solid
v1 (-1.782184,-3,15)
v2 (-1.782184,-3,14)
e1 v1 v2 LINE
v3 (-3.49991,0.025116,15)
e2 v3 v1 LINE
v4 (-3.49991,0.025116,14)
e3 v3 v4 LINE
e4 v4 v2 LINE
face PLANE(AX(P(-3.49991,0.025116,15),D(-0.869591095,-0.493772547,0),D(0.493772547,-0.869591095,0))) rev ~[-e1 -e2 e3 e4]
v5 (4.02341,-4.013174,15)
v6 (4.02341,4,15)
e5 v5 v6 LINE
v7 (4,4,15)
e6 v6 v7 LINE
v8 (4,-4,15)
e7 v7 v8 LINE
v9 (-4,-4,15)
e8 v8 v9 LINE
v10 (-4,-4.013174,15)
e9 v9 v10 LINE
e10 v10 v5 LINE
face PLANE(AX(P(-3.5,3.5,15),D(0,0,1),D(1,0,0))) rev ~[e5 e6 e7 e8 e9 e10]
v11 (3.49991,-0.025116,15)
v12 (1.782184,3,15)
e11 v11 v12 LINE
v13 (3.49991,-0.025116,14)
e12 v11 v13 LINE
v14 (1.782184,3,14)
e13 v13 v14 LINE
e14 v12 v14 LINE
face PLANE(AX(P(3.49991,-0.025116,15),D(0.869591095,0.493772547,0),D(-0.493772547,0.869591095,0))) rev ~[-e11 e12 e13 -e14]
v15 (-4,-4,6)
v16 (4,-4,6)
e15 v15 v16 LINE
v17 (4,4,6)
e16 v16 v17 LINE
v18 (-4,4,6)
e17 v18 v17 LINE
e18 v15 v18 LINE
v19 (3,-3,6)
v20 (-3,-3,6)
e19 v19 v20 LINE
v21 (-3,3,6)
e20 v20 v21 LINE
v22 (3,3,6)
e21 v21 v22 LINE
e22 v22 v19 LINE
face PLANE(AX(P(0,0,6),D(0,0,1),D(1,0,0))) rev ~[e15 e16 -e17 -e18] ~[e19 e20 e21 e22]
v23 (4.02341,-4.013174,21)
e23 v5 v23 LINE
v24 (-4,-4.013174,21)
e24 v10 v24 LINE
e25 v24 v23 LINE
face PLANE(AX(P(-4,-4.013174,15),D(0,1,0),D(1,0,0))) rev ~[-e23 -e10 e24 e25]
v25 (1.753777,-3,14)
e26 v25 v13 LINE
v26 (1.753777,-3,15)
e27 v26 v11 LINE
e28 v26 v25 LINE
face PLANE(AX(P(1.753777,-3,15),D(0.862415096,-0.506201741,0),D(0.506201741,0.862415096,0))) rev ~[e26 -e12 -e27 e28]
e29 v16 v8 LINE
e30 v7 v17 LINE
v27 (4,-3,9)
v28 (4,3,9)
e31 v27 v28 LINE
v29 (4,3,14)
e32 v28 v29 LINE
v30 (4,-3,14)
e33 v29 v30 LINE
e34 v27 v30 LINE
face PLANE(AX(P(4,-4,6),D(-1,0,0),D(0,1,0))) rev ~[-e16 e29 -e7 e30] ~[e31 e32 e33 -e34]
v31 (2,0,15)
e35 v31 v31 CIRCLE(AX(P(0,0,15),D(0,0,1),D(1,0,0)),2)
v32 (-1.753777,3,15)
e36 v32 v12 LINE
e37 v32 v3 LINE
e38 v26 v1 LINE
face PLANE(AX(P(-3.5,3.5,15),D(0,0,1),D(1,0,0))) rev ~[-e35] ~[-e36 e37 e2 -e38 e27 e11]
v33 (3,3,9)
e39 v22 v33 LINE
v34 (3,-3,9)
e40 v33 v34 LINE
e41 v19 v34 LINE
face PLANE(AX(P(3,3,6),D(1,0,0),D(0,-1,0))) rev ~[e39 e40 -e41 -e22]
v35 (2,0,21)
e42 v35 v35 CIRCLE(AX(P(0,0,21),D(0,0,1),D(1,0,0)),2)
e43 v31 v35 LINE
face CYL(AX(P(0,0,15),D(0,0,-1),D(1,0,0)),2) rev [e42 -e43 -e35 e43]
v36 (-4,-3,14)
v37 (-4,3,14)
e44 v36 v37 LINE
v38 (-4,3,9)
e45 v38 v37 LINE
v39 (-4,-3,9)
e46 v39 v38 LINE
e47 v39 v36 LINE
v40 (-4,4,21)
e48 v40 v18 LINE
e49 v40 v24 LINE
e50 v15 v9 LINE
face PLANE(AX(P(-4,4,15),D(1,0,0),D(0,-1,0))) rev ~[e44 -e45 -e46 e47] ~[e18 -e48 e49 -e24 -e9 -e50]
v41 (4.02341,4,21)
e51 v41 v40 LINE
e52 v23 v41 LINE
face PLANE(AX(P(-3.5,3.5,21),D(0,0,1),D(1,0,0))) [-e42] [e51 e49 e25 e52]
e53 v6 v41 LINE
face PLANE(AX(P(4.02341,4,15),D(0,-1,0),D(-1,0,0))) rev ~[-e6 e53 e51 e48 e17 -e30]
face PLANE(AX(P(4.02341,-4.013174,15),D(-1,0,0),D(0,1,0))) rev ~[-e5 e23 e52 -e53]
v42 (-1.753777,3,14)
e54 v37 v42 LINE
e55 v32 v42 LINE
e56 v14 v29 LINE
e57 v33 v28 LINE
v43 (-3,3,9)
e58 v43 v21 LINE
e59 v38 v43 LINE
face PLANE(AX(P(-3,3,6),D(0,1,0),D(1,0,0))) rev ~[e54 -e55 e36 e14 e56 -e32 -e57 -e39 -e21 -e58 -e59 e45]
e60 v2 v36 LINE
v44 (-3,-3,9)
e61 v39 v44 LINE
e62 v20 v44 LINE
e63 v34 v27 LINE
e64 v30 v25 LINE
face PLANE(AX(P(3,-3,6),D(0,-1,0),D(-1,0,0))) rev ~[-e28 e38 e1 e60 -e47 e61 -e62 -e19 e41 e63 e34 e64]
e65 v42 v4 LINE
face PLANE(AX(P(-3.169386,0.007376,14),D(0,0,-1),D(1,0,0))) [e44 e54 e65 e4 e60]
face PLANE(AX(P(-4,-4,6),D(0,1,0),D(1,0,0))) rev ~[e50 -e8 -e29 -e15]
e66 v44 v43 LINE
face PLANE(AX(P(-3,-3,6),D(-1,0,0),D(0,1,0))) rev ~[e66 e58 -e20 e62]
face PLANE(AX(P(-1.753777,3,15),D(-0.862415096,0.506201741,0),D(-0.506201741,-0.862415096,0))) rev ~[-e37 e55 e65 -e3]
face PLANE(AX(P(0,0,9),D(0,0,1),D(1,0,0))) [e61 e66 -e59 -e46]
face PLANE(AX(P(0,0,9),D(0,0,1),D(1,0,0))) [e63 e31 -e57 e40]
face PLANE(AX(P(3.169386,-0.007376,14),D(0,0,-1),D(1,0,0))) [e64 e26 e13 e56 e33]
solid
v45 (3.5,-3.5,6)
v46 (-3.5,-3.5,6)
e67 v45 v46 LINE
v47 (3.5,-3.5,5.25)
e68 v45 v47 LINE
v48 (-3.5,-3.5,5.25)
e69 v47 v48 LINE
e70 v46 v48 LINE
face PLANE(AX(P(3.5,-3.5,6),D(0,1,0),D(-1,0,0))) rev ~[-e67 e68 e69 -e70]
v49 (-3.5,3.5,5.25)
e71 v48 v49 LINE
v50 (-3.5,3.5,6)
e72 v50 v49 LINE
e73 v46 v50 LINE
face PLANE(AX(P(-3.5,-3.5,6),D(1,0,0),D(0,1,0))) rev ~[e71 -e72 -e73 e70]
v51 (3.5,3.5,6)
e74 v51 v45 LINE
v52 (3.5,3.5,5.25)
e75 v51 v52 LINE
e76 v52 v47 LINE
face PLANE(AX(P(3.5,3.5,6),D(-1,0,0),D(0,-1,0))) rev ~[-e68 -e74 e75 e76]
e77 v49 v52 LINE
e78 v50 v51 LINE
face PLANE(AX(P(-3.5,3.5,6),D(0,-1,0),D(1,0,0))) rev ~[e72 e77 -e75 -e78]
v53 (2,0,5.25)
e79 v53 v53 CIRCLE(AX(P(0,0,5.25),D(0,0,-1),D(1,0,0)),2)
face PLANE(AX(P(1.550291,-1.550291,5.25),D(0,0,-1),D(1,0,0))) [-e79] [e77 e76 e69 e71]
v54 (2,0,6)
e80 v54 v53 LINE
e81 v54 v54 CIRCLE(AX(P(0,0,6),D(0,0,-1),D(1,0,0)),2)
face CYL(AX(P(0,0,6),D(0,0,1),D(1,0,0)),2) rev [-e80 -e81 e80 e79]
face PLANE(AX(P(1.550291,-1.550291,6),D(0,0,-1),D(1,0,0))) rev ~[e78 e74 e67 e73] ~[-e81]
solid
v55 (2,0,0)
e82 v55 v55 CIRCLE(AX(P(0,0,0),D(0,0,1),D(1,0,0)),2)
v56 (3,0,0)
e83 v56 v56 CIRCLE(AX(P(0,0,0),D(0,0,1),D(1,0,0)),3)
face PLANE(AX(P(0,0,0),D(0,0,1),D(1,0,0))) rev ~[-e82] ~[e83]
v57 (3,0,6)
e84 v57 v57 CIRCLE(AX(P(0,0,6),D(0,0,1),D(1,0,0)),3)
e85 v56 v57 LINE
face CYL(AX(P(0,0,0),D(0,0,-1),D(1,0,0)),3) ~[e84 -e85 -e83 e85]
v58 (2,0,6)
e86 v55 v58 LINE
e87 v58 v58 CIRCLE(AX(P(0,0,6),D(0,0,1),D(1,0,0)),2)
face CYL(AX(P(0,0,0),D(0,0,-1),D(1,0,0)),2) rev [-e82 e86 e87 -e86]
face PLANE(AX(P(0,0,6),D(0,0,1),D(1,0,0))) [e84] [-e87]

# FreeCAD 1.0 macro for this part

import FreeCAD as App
import Part
import Sketcher
from FreeCAD import Vector
Q = App.Units.Quantity


def add_polygon(sketch, points):
    """Adds a closed chain of lines whose ends are joined by coincident constraints."""
    first, n = sketch.GeometryCount, len(points)
    for a, b in zip(points, points[1:] + points[:1]):
        sketch.addGeometry(Part.LineSegment(App.Vector(*a, 0), App.Vector(*b, 0)), False)
    for i in range(n):
        sketch.addConstraint(Sketcher.Constraint("Coincident", first + i, 2, first + (i + 1) % n, 1))

doc = App.newDocument("Part")
params = doc.addObject("Spreadsheet::Sheet", "Params")
for row, (alias, value) in enumerate([
    ("sketch1_diameter", "6 mm"),
    ("sketch1_diameter2", "4 mm"),
    ("pad1_length", "6 mm"),
    ("sketch2_width", "8 mm"),
    ("sketch2_width2", "6 mm"),
    ("pad2_length", "3 mm"),
    ("sketch3_width", "1 mm"),
    ("pad3_length", "6 mm"),
    ("sketch4_diameter", "4 mm"),
    ("pad4_length", "6 mm"),
    ("sketch5_width", "6 mm"),
    ("sketch5_height", "1 mm"),
    ("pad5_length", "7.62 mm"),
    ("sketch6_height", "6 mm"),
    ("pad6_length", "1 mm"),
    ("sketch7_diameter", "4 mm"),
    ("sketch7_width", "7 mm"),
    ("pad7_length", "0.75 mm"),
], start=1):
    params.set(f"A{row}", alias)
    params.set(f"B{row}", "=" + value)
    params.setAlias(f"B{row}", alias)

body = doc.addObject("PartDesign::Body", "Body")

# Sketch on XY plane
sketch1 = body.newObject("Sketcher::SketchObject", "Sketch")
sketch1.AttachmentSupport = (doc.getObject("XY_Plane"), [""])
sketch1.MapMode = "FlatFace"
sketch1.addGeometry(Part.Circle(Vector(0, 0, 0), Vector(0, 0, 1), 3), False)
sketch1.addGeometry(Part.Circle(Vector(0, 0, 0), Vector(0, 0, 1), 2), False)
sketch1.addConstraint(Sketcher.Constraint("Coincident", 0, 3, -1, 1))
sketch1.addConstraint(Sketcher.Constraint("Coincident", 1, 3, -1, 1))
sketch1.addConstraint(Sketcher.Constraint("Diameter", 0, Q("6 mm")))
sketch1.addConstraint(Sketcher.Constraint("Diameter", 1, Q("4 mm")))
sketch1.setExpression("Constraints[2]", "Params.sketch1_diameter")
sketch1.setExpression("Constraints[3]", "Params.sketch1_diameter2")
pad1 = body.newObject("PartDesign::Pad", "Pad")
pad1.Profile = sketch1
pad1.setExpression("Length", "Params.pad1_length")
body2 = doc.addObject("PartDesign::Body", "Body001")

# Sketch on XY plane
sketch2 = body2.newObject("Sketcher::SketchObject", "Sketch001")
sketch2.AttachmentSupport = (doc.getObject("XY_Plane001"), [""])
sketch2.MapMode = "FlatFace"
sketch2.AttachmentOffset = App.Placement(Vector(0, 0, 6), App.Rotation())
add_polygon(sketch2, [(-4, 4), (-4, -4), (4, -4), (4, 4)])  # lines 0-3
add_polygon(sketch2, [(-3, 3), (3, 3), (3, -3), (-3, -3)])  # lines 4-7
sketch2.addConstraint(Sketcher.Constraint("Vertical", 0))
sketch2.addConstraint(Sketcher.Constraint("Horizontal", 1))
sketch2.addConstraint(Sketcher.Constraint("Vertical", 2))
sketch2.addConstraint(Sketcher.Constraint("Horizontal", 3))
sketch2.addConstraint(Sketcher.Constraint("Horizontal", 4))
sketch2.addConstraint(Sketcher.Constraint("Vertical", 5))
sketch2.addConstraint(Sketcher.Constraint("Horizontal", 6))
sketch2.addConstraint(Sketcher.Constraint("Vertical", 7))
sketch2.addConstraint(Sketcher.Constraint("Symmetric", 0, 2, 2, 2, -1, 1))
sketch2.addConstraint(Sketcher.Constraint("Symmetric", 4, 2, 6, 2, -1, 1))
sketch2.addConstraint(Sketcher.Constraint("Equal", 3, 0))
sketch2.addConstraint(Sketcher.Constraint("Equal", 6, 5))
sketch2.addConstraint(Sketcher.Constraint("DistanceX", 1, 1, 1, 2, Q("8 mm")))
sketch2.addConstraint(Sketcher.Constraint("DistanceX", 4, 1, 4, 2, Q("6 mm")))
sketch2.setExpression("Constraints[20]", "Params.sketch2_width")
sketch2.setExpression("Constraints[21]", "Params.sketch2_width2")
pad2 = body2.newObject("PartDesign::Pad", "Pad001")
pad2.Profile = sketch2
pad2.setExpression("Length", "Params.pad2_length")

# Sketch on XY plane
sketch3 = body2.newObject("Sketcher::SketchObject", "Sketch002")
sketch3.AttachmentSupport = (doc.getObject("XY_Plane001"), [""])
sketch3.MapMode = "FlatFace"
sketch3.AttachmentOffset = App.Placement(Vector(0, 0, 9), App.Rotation())
add_polygon(sketch3, [(-4, 4), (-4, 3), (-3, 3), (-3, 4)])  # lines 0-3
add_polygon(sketch3, [(3, 4), (3, 3), (4, 3), (4, 4)])  # lines 4-7
add_polygon(sketch3, [(3, -3), (3, -4), (4, -4), (4, -3)])  # lines 8-11
add_polygon(sketch3, [(-4, -3), (-4, -4), (-3, -4), (-3, -3)])  # lines 12-15
sketch3.addConstraint(Sketcher.Constraint("Vertical", 0))
sketch3.addConstraint(Sketcher.Constraint("Horizontal", 1))
sketch3.addConstraint(Sketcher.Constraint("Vertical", 2))
sketch3.addConstraint(Sketcher.Constraint("Horizontal", 3))
sketch3.addConstraint(Sketcher.Constraint("Vertical", 4))
sketch3.addConstraint(Sketcher.Constraint("Horizontal", 5))
sketch3.addConstraint(Sketcher.Constraint("Vertical", 6))
sketch3.addConstraint(Sketcher.Constraint("Horizontal", 7))
sketch3.addConstraint(Sketcher.Constraint("Vertical", 8))
sketch3.addConstraint(Sketcher.Constraint("Horizontal", 9))
sketch3.addConstraint(Sketcher.Constraint("Vertical", 10))
sketch3.addConstraint(Sketcher.Constraint("Horizontal", 11))
sketch3.addConstraint(Sketcher.Constraint("Vertical", 12))
sketch3.addConstraint(Sketcher.Constraint("Horizontal", 13))
sketch3.addConstraint(Sketcher.Constraint("Vertical", 14))
sketch3.addConstraint(Sketcher.Constraint("Horizontal", 15))
sketch3.addConstraint(Sketcher.Constraint("Symmetric", 2, 2, 8, 2, -1, 1))
sketch3.addConstraint(Sketcher.Constraint("Symmetric", 0, 2, 10, 2, -1, 1))
sketch3.addConstraint(Sketcher.Constraint("Symmetric", 6, 2, 12, 2, -1, 1))
sketch3.addConstraint(Sketcher.Constraint("Symmetric", 4, 2, 14, 2, -1, 1))
sketch3.addConstraint(Sketcher.Constraint("Symmetric", 1, 2, 4, 2, -2))
sketch3.addConstraint(Sketcher.Constraint("Symmetric", 3, 2, 6, 2, -2))
sketch3.addConstraint(Sketcher.Constraint("Equal", 15, 0))
sketch3.addConstraint(Sketcher.Constraint("DistanceX", 1, 1, 1, 2, Q("1 mm")))
sketch3.addConstraint(Sketcher.Constraint("DistanceX", 0, 2, -1, 1, Q("4 mm")))
sketch3.addConstraint(Sketcher.Constraint("DistanceY", -1, 1, 0, 2, Q("3 mm")))
sketch3.setExpression("Constraints[39]", "Params.sketch3_width")
pad3 = body2.newObject("PartDesign::Pad", "Pad002")
pad3.Profile = sketch3
pad3.setExpression("Length", "Params.pad3_length")

# Sketch on XY plane
sketch4 = body2.newObject("Sketcher::SketchObject", "Sketch003")
sketch4.AttachmentSupport = (doc.getObject("XY_Plane001"), [""])
sketch4.MapMode = "FlatFace"
sketch4.AttachmentOffset = App.Placement(Vector(0, 0, 15), App.Rotation())
add_polygon(sketch4, [(-4, 4), (-4, -4), (4, -4), (4, 4)])  # lines 0-3
sketch4.addGeometry(Part.Circle(Vector(0, 0, 0), Vector(0, 0, 1), 2), False)  # 4
sketch4.addConstraint(Sketcher.Constraint("Vertical", 0))
sketch4.addConstraint(Sketcher.Constraint("Horizontal", 1))
sketch4.addConstraint(Sketcher.Constraint("Vertical", 2))
sketch4.addConstraint(Sketcher.Constraint("Horizontal", 3))
sketch4.addConstraint(Sketcher.Constraint("Coincident", 4, 3, -1, 1))
sketch4.addConstraint(Sketcher.Constraint("Diameter", 4, Q("4 mm")))
sketch4.addConstraint(Sketcher.Constraint("DistanceX", 0, 2, -1, 1, Q("4 mm")))
sketch4.addConstraint(Sketcher.Constraint("DistanceY", -1, 1, 2, 2, Q("4 mm")))
sketch4.addConstraint(Sketcher.Constraint("DistanceX", 1, 1, 1, 2, Q("8.02341 mm")))
sketch4.addConstraint(Sketcher.Constraint("DistanceY", 0, 2, 0, 1, Q("8.013174 mm")))
sketch4.setExpression("Constraints[9]", "Params.sketch4_diameter")
pad4 = body2.newObject("PartDesign::Pad", "Pad003")
pad4.Profile = sketch4
pad4.setExpression("Length", "Params.pad4_length")

# Sketch on XY plane
sketch5 = body2.newObject("Sketcher::SketchObject", "Sketch004")
sketch5.AttachmentSupport = (doc.getObject("XY_Plane001"), [""])
sketch5.MapMode = "FlatFace"
sketch5.AttachmentOffset = App.Placement(Vector(0, 0, 15), App.Rotation())
add_polygon(sketch5, [(-3, -4), (-3, -3), (3, -3), (3, -4)])  # lines 0-3
add_polygon(sketch5, [(-3, 3), (-3, 4), (3, 4), (3, 3)])  # lines 4-7
sketch5.addConstraint(Sketcher.Constraint("Vertical", 0))
sketch5.addConstraint(Sketcher.Constraint("Horizontal", 1))
sketch5.addConstraint(Sketcher.Constraint("Vertical", 2))
sketch5.addConstraint(Sketcher.Constraint("Horizontal", 3))
sketch5.addConstraint(Sketcher.Constraint("Vertical", 4))
sketch5.addConstraint(Sketcher.Constraint("Horizontal", 5))
sketch5.addConstraint(Sketcher.Constraint("Vertical", 6))
sketch5.addConstraint(Sketcher.Constraint("Horizontal", 7))
sketch5.addConstraint(Sketcher.Constraint("Symmetric", 2, 2, 4, 2, -1, 1))
sketch5.addConstraint(Sketcher.Constraint("Symmetric", 0, 2, 6, 2, -1, 1))
sketch5.addConstraint(Sketcher.Constraint("Vertical", 3, 2, 4, 2))
sketch5.addConstraint(Sketcher.Constraint("DistanceX", 1, 1, 1, 2, Q("6 mm")))
sketch5.addConstraint(Sketcher.Constraint("DistanceY", 0, 1, 0, 2, Q("1 mm")))
sketch5.addConstraint(Sketcher.Constraint("DistanceY", 0, 2, -1, 1, Q("3 mm")))
sketch5.setExpression("Constraints[19]", "Params.sketch5_width")
sketch5.setExpression("Constraints[20]", "Params.sketch5_height")
pad5 = body2.newObject("PartDesign::Pad", "Pad004")
pad5.Profile = sketch5
pad5.setExpression("Length", "Params.pad5_length")
pad5.Reversed = True

# Sketch on XY plane
sketch6 = body2.newObject("Sketcher::SketchObject", "Sketch005")
sketch6.AttachmentSupport = (doc.getObject("XY_Plane001"), [""])
sketch6.MapMode = "FlatFace"
sketch6.AttachmentOffset = App.Placement(Vector(0, 0, 15), App.Rotation())
add_polygon(sketch6, [(-1.8, 3), (-3.5, 0), (-1.8, -3), (-4, -3), (-4, 3)])  # lines 0-4
add_polygon(sketch6, [(4, -3), (1.8, -3), (3.5, 0), (1.8, 3), (4, 3)])  # lines 5-9
sketch6.addConstraint(Sketcher.Constraint("Horizontal", 2))
sketch6.addConstraint(Sketcher.Constraint("Vertical", 3))
sketch6.addConstraint(Sketcher.Constraint("Horizontal", 4))
sketch6.addConstraint(Sketcher.Constraint("Horizontal", 5))
sketch6.addConstraint(Sketcher.Constraint("Horizontal", 8))
sketch6.addConstraint(Sketcher.Constraint("Vertical", 9))
sketch6.addConstraint(Sketcher.Constraint("Symmetric", 4, 2, 5, 2, -1, 1))
sketch6.addConstraint(Sketcher.Constraint("Symmetric", 0, 2, 6, 2, -1, 1))
sketch6.addConstraint(Sketcher.Constraint("Symmetric", 1, 2, 7, 2, -1, 1))
sketch6.addConstraint(Sketcher.Constraint("Symmetric", 3, 2, 8, 2, -2))
sketch6.addConstraint(Sketcher.Constraint("DistanceY", 3, 1, 3, 2, Q("6 mm")))
sketch6.addConstraint(Sketcher.Constraint("DistanceX", 2, 2, -1, 1, Q("4 mm")))
sketch6.addConstraint(Sketcher.Constraint("Distance", 0, Q("3.44948 mm")))
sketch6.addConstraint(Sketcher.Constraint("Distance", 1, Q("3.47878 mm")))
sketch6.addConstraint(Sketcher.Constraint("DistanceX", 2, 2, 2, 1, Q("2.217816 mm")))
sketch6.addConstraint(Sketcher.Constraint("DistanceX", 4, 1, 4, 2, Q("2.246223 mm")))
sketch6.setExpression("Constraints[20]", "Params.sketch6_height")
pad6 = body2.newObject("PartDesign::Pad", "Pad005")
pad6.Profile = sketch6
pad6.setExpression("Length", "Params.pad6_length")
pad6.Reversed = True
body3 = doc.addObject("PartDesign::Body", "Body002")

# Sketch on XY plane
sketch7 = body3.newObject("Sketcher::SketchObject", "Sketch006")
sketch7.AttachmentSupport = (doc.getObject("XY_Plane002"), [""])
sketch7.MapMode = "FlatFace"
sketch7.AttachmentOffset = App.Placement(Vector(0, 0, 6), App.Rotation())
add_polygon(sketch7, [(3.5, -3.5), (-3.5, -3.5), (-3.5, 3.5), (3.5, 3.5)])  # lines 0-3
sketch7.addGeometry(Part.Circle(Vector(0, 0, 0), Vector(0, 0, 1), 2), False)  # 4
sketch7.addConstraint(Sketcher.Constraint("Horizontal", 0))
sketch7.addConstraint(Sketcher.Constraint("Vertical", 1))
sketch7.addConstraint(Sketcher.Constraint("Horizontal", 2))
sketch7.addConstraint(Sketcher.Constraint("Vertical", 3))
sketch7.addConstraint(Sketcher.Constraint("Coincident", 4, 3, -1, 1))
sketch7.addConstraint(Sketcher.Constraint("Symmetric", 0, 2, 2, 2, -1, 1))
sketch7.addConstraint(Sketcher.Constraint("Equal", 2, 1))
sketch7.addConstraint(Sketcher.Constraint("Diameter", 4, Q("4 mm")))
sketch7.addConstraint(Sketcher.Constraint("DistanceX", 0, 2, 0, 1, Q("7 mm")))
sketch7.setExpression("Constraints[11]", "Params.sketch7_diameter")
sketch7.setExpression("Constraints[12]", "Params.sketch7_width")
pad7 = body3.newObject("PartDesign::Pad", "Pad006")
pad7.Profile = sketch7
pad7.setExpression("Length", "Params.pad7_length")
pad7.Reversed = True

doc.recompute()
